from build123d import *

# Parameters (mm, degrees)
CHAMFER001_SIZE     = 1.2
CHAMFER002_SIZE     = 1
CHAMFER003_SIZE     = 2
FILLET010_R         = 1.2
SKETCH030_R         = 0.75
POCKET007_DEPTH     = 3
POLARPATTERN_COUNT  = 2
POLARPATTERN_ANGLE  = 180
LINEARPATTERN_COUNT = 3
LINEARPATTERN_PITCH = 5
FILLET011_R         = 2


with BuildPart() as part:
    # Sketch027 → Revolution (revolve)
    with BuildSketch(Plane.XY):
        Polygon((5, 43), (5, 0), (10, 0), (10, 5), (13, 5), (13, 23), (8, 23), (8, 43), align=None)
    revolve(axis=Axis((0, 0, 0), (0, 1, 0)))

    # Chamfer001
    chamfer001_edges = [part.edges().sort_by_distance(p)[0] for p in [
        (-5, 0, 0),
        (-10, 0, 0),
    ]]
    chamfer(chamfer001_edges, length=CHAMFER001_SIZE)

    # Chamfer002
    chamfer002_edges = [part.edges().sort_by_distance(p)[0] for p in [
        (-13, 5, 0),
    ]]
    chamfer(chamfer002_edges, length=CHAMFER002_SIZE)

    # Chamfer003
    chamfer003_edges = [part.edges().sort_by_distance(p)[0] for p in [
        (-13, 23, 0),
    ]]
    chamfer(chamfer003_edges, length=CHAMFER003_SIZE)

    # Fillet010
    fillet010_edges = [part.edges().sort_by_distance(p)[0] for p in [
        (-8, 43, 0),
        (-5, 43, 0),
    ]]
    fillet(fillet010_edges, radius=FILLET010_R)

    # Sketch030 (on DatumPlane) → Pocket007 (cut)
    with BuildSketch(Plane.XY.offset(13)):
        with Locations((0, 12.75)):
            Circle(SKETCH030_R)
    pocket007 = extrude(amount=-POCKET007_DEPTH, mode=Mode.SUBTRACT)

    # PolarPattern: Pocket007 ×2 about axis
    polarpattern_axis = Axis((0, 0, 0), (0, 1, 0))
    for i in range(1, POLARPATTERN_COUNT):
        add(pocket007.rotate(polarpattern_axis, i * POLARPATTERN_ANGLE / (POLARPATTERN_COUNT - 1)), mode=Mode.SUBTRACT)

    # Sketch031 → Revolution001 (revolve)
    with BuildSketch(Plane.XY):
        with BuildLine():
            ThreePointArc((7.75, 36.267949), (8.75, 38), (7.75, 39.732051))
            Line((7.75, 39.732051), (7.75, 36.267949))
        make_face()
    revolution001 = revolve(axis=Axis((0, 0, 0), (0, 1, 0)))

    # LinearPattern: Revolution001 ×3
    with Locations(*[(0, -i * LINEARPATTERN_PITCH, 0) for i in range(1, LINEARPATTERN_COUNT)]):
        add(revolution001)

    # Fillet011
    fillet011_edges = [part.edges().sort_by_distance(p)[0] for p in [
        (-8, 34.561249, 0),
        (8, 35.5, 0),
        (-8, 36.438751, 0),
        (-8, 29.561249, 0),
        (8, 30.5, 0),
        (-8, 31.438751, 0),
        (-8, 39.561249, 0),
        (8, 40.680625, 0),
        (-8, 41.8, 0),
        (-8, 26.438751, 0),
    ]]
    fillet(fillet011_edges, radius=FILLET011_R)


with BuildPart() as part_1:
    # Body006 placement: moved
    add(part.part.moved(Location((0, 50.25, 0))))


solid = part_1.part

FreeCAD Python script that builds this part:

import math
import FreeCAD as App
import Part
import Sketcher
from FreeCAD import Vector
Q = App.Units.Quantity


def edges_at(feature, points):
    """Names of the edges that pass closest to the given points."""
    edges = feature.Shape.Edges
    near = lambda p: min(range(len(edges)), key=lambda i: edges[i].distToShape(Part.Vertex(*p))[0])
    return sorted({f"Edge{near(p) + 1}" for p in points})


def add_polygon(sketch, points):
    """Adds a closed chain of lines whose ends are joined by coincident constraints."""
    first, n = sketch.GeometryCount, len(points)
    for a, b in zip(points, points[1:] + points[:1]):
        sketch.addGeometry(Part.LineSegment(App.Vector(*a, 0), App.Vector(*b, 0)), False)
    for i in range(n):
        sketch.addConstraint(Sketcher.Constraint("Coincident", first + i, 2, first + (i + 1) % n, 1))

doc = App.newDocument("Part")
body = doc.addObject("PartDesign::Body", "Body")

sketch1 = body.newObject("Sketcher::SketchObject", "Sketch")
sketch1.AttachmentSupport = (doc.getObject("XY_Plane"), [""])
sketch1.MapMode = "FlatFace"
add_polygon(sketch1, [(5, 43), (5, 0), (10, 0), (10, 5), (13, 5), (13, 23), (8, 23), (8, 43)])
sketch1.addConstraint([
    Sketcher.Constraint("Vertical", 0),
    Sketcher.Constraint("Horizontal", 1),
    Sketcher.Constraint("Vertical", 2),
    Sketcher.Constraint("Horizontal", 3),
    Sketcher.Constraint("Vertical", 4),
    Sketcher.Constraint("Horizontal", 5),
    Sketcher.Constraint("Vertical", 6),
    Sketcher.Constraint("Horizontal", 7),
    Sketcher.Constraint("PointOnObject", 0, 2, -1),
    Sketcher.Constraint("Equal", 1, 5),
    Sketcher.Constraint("Equal", 5, 2),
    Sketcher.Constraint("DistanceX", 1, 1, 1, 2, Q("5 mm")),
    Sketcher.Constraint("DistanceX", 3, 1, 3, 2, Q("3 mm")),
    Sketcher.Constraint("DistanceY", 0, 2, 0, 1, Q("43 mm")),
    Sketcher.Constraint("DistanceY", 4, 1, 4, 2, Q("18 mm")),
    Sketcher.Constraint("DistanceX", -1, 1, 0, 2, Q("5 mm")),
])
revolution = body.newObject("PartDesign::Revolution", "Revolution")
revolution.Profile = sketch1
revolution.ReferenceAxis = (sketch1, ["V_Axis"])
revolution.Angle = 360
doc.recompute()

chamfer = body.newObject("PartDesign::Chamfer", "Chamfer")
chamfer.Base = (revolution, edges_at(revolution, [(-5, 0, 0), (-10, 0, 0)]))
chamfer.Size = 1.2
doc.recompute()

chamfer2 = body.newObject("PartDesign::Chamfer", "Chamfer001")
chamfer2.Base = (chamfer, edges_at(chamfer, [(-13, 5, 0)]))
chamfer2.Size = 1
doc.recompute()

chamfer3 = body.newObject("PartDesign::Chamfer", "Chamfer002")
chamfer3.Base = (chamfer2, edges_at(chamfer2, [(-13, 23, 0)]))
chamfer3.Size = 2
doc.recompute()

fillet = body.newObject("PartDesign::Fillet", "Fillet")
fillet.Base = (chamfer3, edges_at(chamfer3, [(-8, 43, 0), (-5, 43, 0)]))
fillet.Radius = 1.2

sketch2 = body.newObject("Sketcher::SketchObject", "Sketch001")
sketch2.AttachmentSupport = (doc.getObject("XY_Plane"), [""])
sketch2.MapMode = "FlatFace"
sketch2.AttachmentOffset = App.Placement(Vector(0, 0, 13), App.Rotation())
sketch2.addGeometry(Part.Circle(Vector(0, 12.75, 0), Vector(0, 0, 1), 0.75), False)
sketch2.addConstraint([
    Sketcher.Constraint("PointOnObject", 0, 3, -2),
    Sketcher.Constraint("Diameter", 0, Q("1.5 mm")),
    Sketcher.Constraint("DistanceY", -1, 1, 0, 3, Q("12.75 mm")),
])
pocket1 = body.newObject("PartDesign::Pocket", "Pocket")
pocket1.Profile = sketch2
pocket1.Length = 3
doc.recompute()

polarpattern = body.newObject("PartDesign::PolarPattern", "PolarPattern")
polarpattern.Originals = [pocket1]
polarpattern.Axis = (doc.getObject("Y_Axis"), [""])
polarpattern.Angle = 360
polarpattern.Occurrences = 2
body.Tip = polarpattern

sketch3 = body.newObject("Sketcher::SketchObject", "Sketch002")
sketch3.AttachmentSupport = (doc.getObject("XY_Plane"), [""])
sketch3.MapMode = "FlatFace"
sketch3.addGeometry([
    Part.ArcOfCircle(Part.Circle(Vector(6.75, 38, 0), Vector(0, 0, 1), 2), math.radians(-59.999994), math.radians(59.999994)),
    Part.LineSegment(Vector(7.75, 39.732051, 0), Vector(7.75, 36.267949, 0)),
], False)
sketch3.addConstraint([
    Sketcher.Constraint("Coincident", 0, 1, 1, 2),
    Sketcher.Constraint("Coincident", 1, 1, 0, 2),
    Sketcher.Constraint("Vertical", 1),
    Sketcher.Constraint("Radius", 0, Q("2 mm")),
    Sketcher.Constraint("DistanceY", -1, 1, 0, 3, Q("38 mm")),
    Sketcher.Constraint("DistanceX", 0, 3, 0, 1, Q("1 mm")),
    Sketcher.Constraint("DistanceX", -1, 1, 0, 3, Q("6.75 mm")),
])
revolution2 = body.newObject("PartDesign::Revolution", "Revolution001")
revolution2.Profile = sketch3
revolution2.ReferenceAxis = (sketch3, ["V_Axis"])
revolution2.Angle = 360
doc.recompute()

linearpattern = body.newObject("PartDesign::LinearPattern", "LinearPattern")
linearpattern.Originals = [revolution2]
linearpattern.Direction = (doc.getObject("Y_Axis"), [""])
linearpattern.Mode = "offset"
linearpattern.Offset = 5
linearpattern.Occurrences = 3
linearpattern.Reversed = True
body.Tip = linearpattern
doc.recompute()

fillet2 = body.newObject("PartDesign::Fillet", "Fillet001")
fillet2.Base = (linearpattern, edges_at(linearpattern, [
    (-8, 34.561, 0),
    (8, 35.5, 0),
    (-8, 36.439, 0),
    (-8, 29.561, 0),
    (8, 30.5, 0),
    (-8, 31.439, 0),
    (-8, 39.561, 0),
    (8, 40.681, 0),
    (-8, 41.8, 0),
    (-8, 26.439, 0),
]))
fillet2.Radius = 2
body2 = doc.addObject("PartDesign::Body", "Body001")
doc.recompute()

body.Placement = App.Placement(Vector(0, 50.25, 0), App.Rotation(Vector(0, 0, 1), 0))
boolean = body2.newObject("PartDesign::Boolean", "Boolean")
boolean.Type = "Fuse"
boolean.addObjects([body])

doc.recompute()
